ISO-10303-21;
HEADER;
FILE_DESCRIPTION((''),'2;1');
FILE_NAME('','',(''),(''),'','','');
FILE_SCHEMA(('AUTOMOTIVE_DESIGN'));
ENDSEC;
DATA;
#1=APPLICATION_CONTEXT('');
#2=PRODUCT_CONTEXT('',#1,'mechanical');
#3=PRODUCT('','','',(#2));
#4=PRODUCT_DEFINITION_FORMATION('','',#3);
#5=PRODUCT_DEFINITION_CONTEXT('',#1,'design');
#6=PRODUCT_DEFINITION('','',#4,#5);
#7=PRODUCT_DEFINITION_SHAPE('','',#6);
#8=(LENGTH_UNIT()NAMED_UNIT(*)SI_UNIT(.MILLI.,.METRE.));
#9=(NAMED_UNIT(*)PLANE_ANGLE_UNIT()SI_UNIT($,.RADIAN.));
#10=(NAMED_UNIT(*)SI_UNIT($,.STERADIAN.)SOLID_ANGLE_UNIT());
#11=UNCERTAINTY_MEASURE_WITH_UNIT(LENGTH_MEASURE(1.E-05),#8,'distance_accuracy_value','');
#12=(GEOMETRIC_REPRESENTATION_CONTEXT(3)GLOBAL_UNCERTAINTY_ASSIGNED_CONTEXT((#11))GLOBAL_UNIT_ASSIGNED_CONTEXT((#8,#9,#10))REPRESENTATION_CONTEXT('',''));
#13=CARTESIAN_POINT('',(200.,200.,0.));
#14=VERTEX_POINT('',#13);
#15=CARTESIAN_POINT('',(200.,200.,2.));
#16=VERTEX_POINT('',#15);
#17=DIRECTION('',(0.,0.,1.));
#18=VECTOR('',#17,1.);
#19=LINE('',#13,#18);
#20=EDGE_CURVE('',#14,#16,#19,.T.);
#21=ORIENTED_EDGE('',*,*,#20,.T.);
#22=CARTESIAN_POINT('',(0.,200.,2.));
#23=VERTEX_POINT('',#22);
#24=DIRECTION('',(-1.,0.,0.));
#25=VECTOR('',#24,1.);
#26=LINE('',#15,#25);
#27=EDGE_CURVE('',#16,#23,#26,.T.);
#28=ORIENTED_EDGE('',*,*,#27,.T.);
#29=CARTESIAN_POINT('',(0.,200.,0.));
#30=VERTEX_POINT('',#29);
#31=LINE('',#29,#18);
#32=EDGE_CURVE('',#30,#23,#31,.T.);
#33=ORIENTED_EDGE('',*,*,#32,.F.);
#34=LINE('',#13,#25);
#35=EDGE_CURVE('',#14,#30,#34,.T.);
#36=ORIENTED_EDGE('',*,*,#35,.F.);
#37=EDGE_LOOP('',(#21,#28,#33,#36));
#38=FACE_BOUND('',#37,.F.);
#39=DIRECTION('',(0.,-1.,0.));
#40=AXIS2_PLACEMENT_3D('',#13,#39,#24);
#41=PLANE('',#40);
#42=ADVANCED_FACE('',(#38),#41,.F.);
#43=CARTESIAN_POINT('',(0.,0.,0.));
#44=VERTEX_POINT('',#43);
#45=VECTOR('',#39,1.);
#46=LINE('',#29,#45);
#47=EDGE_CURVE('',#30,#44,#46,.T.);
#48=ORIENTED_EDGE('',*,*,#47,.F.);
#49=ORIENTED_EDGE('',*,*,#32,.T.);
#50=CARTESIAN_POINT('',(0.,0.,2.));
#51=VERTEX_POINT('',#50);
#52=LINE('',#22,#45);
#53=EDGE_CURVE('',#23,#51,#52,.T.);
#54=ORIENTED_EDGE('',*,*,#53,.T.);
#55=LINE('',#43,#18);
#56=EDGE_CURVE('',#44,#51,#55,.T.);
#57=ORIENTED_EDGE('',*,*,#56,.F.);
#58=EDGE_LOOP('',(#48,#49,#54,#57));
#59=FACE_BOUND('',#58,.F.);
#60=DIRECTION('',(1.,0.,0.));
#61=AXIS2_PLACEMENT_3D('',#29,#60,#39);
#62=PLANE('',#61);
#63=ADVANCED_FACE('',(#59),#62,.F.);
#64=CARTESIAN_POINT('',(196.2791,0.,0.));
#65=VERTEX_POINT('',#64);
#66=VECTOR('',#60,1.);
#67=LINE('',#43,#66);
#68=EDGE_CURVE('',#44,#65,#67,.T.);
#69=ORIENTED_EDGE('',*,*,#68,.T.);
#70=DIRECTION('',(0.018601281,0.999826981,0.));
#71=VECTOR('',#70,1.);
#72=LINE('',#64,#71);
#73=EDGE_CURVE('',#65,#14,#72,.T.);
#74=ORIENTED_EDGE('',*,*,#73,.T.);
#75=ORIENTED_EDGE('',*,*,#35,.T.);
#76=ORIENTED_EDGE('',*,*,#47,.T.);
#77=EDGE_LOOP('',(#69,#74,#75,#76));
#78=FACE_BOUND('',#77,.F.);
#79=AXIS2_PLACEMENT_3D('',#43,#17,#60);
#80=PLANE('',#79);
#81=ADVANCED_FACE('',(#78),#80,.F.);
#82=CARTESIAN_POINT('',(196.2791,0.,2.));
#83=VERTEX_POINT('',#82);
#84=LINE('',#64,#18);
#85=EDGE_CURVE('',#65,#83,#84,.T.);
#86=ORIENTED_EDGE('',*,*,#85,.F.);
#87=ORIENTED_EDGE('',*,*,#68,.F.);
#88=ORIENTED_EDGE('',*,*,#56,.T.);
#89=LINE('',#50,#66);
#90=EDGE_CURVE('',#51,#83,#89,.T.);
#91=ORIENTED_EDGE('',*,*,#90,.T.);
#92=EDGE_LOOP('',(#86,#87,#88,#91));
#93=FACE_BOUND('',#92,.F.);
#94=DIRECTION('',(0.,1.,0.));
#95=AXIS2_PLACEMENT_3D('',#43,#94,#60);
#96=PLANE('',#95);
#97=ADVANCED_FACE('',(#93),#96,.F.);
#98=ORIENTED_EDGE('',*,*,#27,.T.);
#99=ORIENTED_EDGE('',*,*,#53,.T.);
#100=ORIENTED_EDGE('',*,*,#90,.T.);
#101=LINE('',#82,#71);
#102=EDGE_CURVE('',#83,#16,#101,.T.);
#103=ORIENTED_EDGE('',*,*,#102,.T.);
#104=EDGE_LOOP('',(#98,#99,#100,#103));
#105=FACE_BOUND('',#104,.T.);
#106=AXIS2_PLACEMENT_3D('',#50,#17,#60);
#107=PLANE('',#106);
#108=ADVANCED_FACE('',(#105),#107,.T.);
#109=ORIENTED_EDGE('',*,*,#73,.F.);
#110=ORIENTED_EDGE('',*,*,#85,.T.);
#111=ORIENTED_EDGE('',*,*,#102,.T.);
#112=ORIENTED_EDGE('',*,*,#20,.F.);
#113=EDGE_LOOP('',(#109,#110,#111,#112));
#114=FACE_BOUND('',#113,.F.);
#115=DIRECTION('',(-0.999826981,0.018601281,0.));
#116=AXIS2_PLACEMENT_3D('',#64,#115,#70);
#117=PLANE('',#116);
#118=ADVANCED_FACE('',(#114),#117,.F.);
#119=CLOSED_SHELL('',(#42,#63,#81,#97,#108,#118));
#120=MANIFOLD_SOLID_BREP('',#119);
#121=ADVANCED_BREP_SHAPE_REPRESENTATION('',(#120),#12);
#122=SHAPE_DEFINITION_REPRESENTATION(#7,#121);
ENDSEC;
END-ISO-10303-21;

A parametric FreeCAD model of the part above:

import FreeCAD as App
import Part
import Sketcher

doc = App.newDocument("Part")
body = doc.addObject("PartDesign::Body", "Body")

sketch1 = body.newObject("Sketcher::SketchObject", "Sketch")
sketch1.AttachmentSupport = (doc.getObject("XY_Plane"), [""])
sketch1.MapMode = "FlatFace"
sketch1.addGeometry(Part.LineSegment(App.Vector(0, 200, 0), App.Vector(0, 0, 0)), False)
sketch1.addGeometry(Part.LineSegment(App.Vector(0, 0, 0), App.Vector(196, 0, 0)), False)
sketch1.addGeometry(Part.LineSegment(App.Vector(196, 0, 0), App.Vector(200, 200, 0)), False)
sketch1.addGeometry(Part.LineSegment(App.Vector(200, 200, 0), App.Vector(0, 200, 0)), False)
sketch1.addConstraint(Sketcher.Constraint("Coincident", 0, 2, 1, 1))
sketch1.addConstraint(Sketcher.Constraint("Coincident", 1, 2, 2, 1))
sketch1.addConstraint(Sketcher.Constraint("Coincident", 2, 2, 3, 1))
sketch1.addConstraint(Sketcher.Constraint("Coincident", 3, 2, 0, 1))
sketch1.addConstraint(Sketcher.Constraint("Vertical", 0))
sketch1.addConstraint(Sketcher.Constraint("Horizontal", 1))
sketch1.addConstraint(Sketcher.Constraint("Horizontal", 3))
sketch1.addConstraint(Sketcher.Constraint("Coincident", 0, 2, -1, 1))
sketch1.addConstraint(Sketcher.Constraint("Equal", 3, 0))
sketch1.addConstraint(Sketcher.Constraint("DistanceX", 3, 2, 3, 1, 200.0))
sketch1.addConstraint(Sketcher.Constraint("DistanceX", 1, 1, 1, 2, 196.279))
pad1 = body.newObject("PartDesign::Pad", "Pad")
pad1.Profile = sketch1
pad1.Length = 2

doc.recompute()
